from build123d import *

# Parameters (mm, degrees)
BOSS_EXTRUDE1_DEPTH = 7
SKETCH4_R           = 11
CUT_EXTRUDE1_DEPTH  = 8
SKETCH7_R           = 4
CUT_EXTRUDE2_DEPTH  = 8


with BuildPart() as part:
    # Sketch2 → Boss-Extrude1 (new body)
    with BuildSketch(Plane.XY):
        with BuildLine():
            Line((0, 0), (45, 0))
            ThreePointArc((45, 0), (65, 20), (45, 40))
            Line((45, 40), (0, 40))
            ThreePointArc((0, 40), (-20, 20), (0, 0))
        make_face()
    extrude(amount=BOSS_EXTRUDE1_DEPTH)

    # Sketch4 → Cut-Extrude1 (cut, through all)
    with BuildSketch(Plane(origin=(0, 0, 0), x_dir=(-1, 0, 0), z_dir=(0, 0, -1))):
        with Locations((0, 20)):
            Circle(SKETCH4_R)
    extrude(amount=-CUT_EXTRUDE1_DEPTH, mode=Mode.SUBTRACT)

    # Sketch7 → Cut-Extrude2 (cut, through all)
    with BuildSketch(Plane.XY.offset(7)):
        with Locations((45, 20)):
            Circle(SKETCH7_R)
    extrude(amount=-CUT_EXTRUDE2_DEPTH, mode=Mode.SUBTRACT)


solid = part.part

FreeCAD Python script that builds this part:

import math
import FreeCAD as App
import Part
import Sketcher
Q = App.Units.Quantity

doc = App.newDocument("Part")
body = doc.addObject("PartDesign::Body", "Body")

# Sketch on XY plane
sketch1 = body.newObject("Sketcher::SketchObject", "Sketch")
sketch1.AttachmentSupport = (doc.getObject("XY_Plane"), [""])
sketch1.MapMode = "FlatFace"
sketch1.addGeometry(Part.LineSegment(App.Vector(0, 0, 0), App.Vector(45, 0, 0)), False)
sketch1.addGeometry(Part.ArcOfCircle(Part.Circle(App.Vector(45, 20, 0), App.Vector(0, 0, 1), 20), math.radians(-90), math.radians(90)), False)
sketch1.addGeometry(Part.LineSegment(App.Vector(45, 40, 0), App.Vector(0, 40, 0)), False)
sketch1.addGeometry(Part.ArcOfCircle(Part.Circle(App.Vector(0, 20, 0), App.Vector(0, 0, 1), 20), math.radians(90), math.radians(270)), False)
sketch1.addConstraint(Sketcher.Constraint("Tangent", 0, 2, 1, 1))
sketch1.addConstraint(Sketcher.Constraint("Tangent", 1, 2, 2, 1))
sketch1.addConstraint(Sketcher.Constraint("Tangent", 2, 2, 3, 1))
sketch1.addConstraint(Sketcher.Constraint("Tangent", 3, 2, 0, 1))
sketch1.addConstraint(Sketcher.Constraint("Horizontal", 0))
sketch1.addConstraint(Sketcher.Constraint("Horizontal", 2))
sketch1.addConstraint(Sketcher.Constraint("Coincident", 3, 2, -1, 1))
sketch1.addConstraint(Sketcher.Constraint("Radius", 1, Q("20 mm")))
sketch1.addConstraint(Sketcher.Constraint("DistanceX", 0, 1, 0, 2, Q("45 mm")))
pad1 = body.newObject("PartDesign::Pad", "Pad")
pad1.Profile = sketch1
pad1.Length = 7

# Sketch on XY plane
sketch2 = body.newObject("Sketcher::SketchObject", "Sketch001")
sketch2.AttachmentSupport = (doc.getObject("XY_Plane"), [""])
sketch2.MapMode = "FlatFace"
sketch2.addGeometry(Part.Circle(App.Vector(0, 20, 0), App.Vector(0, 0, 1), 11), False)
sketch2.addConstraint(Sketcher.Constraint("PointOnObject", 0, 3, -2))
sketch2.addConstraint(Sketcher.Constraint("Diameter", 0, Q("22 mm")))
sketch2.addConstraint(Sketcher.Constraint("DistanceY", -1, 1, 0, 3, Q("20 mm")))
pocket1 = body.newObject("PartDesign::Pocket", "Pocket")
pocket1.Profile = sketch2
pocket1.Type = "ThroughAll"
pocket1.Reversed = True

# Sketch on XY plane
sketch3 = body.newObject("Sketcher::SketchObject", "Sketch002")
sketch3.AttachmentSupport = (doc.getObject("XY_Plane"), [""])
sketch3.MapMode = "FlatFace"
sketch3.AttachmentOffset = App.Placement(App.Vector(0, 0, 7), App.Rotation())
sketch3.addGeometry(Part.Circle(App.Vector(45, 20, 0), App.Vector(0, 0, 1), 4), False)
sketch3.addConstraint(Sketcher.Constraint("Diameter", 0, Q("8 mm")))
sketch3.addConstraint(Sketcher.Constraint("DistanceX", -1, 1, 0, 3, Q("45 mm")))
sketch3.addConstraint(Sketcher.Constraint("DistanceY", -1, 1, 0, 3, Q("20 mm")))
pocket2 = body.newObject("PartDesign::Pocket", "Pocket001")
pocket2.Profile = sketch3
pocket2.Type = "ThroughAll"

doc.recompute()
